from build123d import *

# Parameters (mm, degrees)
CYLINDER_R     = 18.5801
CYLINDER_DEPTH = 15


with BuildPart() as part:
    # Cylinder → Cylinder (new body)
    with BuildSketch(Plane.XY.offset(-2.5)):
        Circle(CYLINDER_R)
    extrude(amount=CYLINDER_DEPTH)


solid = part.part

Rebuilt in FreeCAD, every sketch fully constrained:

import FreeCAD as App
import Part
import Sketcher

V = App.Vector
Q = App.Units.Quantity

doc = App.newDocument("Part")
body = doc.addObject("PartDesign::Body", "Body")

# Sketch on XY plane
sketch1 = doc.addObject("Sketcher::SketchObject", "Sketch")
body.addObject(sketch1)
sketch1.AttachmentSupport = (doc.XY_Plane, [""])
sketch1.MapMode = "FlatFace"
sketch1.AttachmentOffset = App.Placement(V(0, 0, -2.5), App.Rotation())
sketch1.addGeometry(Part.Circle(V(0, 0, 0), V(0, 0, 1), 19), False)
sketch1.addConstraint([
    Sketcher.Constraint("Coincident", 0, 3, -1, 1),
    Sketcher.Constraint("Diameter", 0, Q("37.1602 mm")),
])
pad1 = doc.addObject("PartDesign::Pad", "Pad")
body.addObject(pad1)
pad1.Profile = sketch1
pad1.Length = 15

doc.recompute()
